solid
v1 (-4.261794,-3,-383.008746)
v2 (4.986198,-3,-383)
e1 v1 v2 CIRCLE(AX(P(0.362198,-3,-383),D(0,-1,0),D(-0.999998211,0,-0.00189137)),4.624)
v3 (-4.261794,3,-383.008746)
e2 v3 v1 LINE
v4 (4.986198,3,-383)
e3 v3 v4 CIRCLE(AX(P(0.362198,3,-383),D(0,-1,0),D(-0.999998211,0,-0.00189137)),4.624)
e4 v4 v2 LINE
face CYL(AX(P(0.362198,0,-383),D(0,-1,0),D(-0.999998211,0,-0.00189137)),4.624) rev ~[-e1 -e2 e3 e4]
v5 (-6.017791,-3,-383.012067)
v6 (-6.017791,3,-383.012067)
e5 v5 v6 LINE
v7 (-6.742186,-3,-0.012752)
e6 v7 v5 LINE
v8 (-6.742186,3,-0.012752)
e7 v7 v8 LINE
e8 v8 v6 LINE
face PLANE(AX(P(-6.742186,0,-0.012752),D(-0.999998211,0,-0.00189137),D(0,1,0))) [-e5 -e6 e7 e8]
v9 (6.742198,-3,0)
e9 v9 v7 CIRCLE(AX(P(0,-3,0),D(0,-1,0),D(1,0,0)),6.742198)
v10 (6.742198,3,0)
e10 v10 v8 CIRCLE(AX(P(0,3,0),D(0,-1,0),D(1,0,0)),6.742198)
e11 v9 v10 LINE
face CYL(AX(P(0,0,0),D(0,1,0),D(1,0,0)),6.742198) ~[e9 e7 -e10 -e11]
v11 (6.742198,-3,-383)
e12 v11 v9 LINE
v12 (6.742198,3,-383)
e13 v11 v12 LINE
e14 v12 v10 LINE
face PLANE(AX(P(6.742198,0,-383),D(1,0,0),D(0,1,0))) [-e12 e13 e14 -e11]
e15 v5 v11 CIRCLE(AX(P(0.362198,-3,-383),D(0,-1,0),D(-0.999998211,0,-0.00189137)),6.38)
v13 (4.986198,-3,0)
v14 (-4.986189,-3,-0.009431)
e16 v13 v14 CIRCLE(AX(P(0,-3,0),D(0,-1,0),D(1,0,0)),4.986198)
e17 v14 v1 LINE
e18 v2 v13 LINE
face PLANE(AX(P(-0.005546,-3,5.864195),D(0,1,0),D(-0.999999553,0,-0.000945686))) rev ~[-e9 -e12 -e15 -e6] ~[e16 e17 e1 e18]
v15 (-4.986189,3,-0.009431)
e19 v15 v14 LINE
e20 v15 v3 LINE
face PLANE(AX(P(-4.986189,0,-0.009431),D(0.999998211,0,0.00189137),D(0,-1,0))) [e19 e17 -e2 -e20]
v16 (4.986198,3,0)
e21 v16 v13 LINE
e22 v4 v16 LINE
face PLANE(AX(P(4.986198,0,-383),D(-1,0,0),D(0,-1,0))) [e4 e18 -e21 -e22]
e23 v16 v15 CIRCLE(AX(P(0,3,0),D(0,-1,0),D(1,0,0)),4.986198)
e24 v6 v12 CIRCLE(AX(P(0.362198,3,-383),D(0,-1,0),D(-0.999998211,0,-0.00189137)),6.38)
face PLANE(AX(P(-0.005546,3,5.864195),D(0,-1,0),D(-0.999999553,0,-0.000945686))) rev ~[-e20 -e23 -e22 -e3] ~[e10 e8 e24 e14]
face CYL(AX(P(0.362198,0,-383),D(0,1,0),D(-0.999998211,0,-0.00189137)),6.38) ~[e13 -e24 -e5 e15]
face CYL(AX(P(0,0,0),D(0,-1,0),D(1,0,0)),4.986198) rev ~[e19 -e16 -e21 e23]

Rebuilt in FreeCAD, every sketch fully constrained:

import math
import FreeCAD as App
import Part
import Sketcher
from FreeCAD import Vector

doc = App.newDocument("Part")
body = doc.addObject("PartDesign::Body", "Body")

sketch1 = body.newObject("Sketcher::SketchObject", "Sketch")
sketch1.AttachmentSupport = (doc.getObject("XY_Plane"), [""])
sketch1.MapMode = "FlatFace"
sketch1.addGeometry([
    Part.LineSegment(Vector(5, 3, 0), Vector(5, -3, 0)),
    Part.LineSegment(Vector(5, -3, 0), Vector(6.7, -3, 0)),
    Part.LineSegment(Vector(6.7, -3, 0), Vector(6.7, 3, 0)),
    Part.LineSegment(Vector(6.7, 3, 0), Vector(5, 3, 0)),
], False)
sketch1.addConstraint([
    Sketcher.Constraint("Coincident", 0, 2, 1, 1),
    Sketcher.Constraint("Coincident", 1, 2, 2, 1),
    Sketcher.Constraint("Coincident", 2, 2, 3, 1),
    Sketcher.Constraint("Coincident", 3, 2, 0, 1),
    Sketcher.Constraint("Vertical", 0),
    Sketcher.Constraint("Horizontal", 1),
    Sketcher.Constraint("Vertical", 2),
    Sketcher.Constraint("Horizontal", 3),
    Sketcher.Constraint("DistanceY", 0, 2, 0, 1, 6.0),
    Sketcher.Constraint("DistanceY", 0, 2, -1, 1, 3.0),
    Sketcher.Constraint("DistanceX", 1, 1, 1, 2, 1.756),
    Sketcher.Constraint("DistanceX", -1, 1, 0, 2, 4.986198),
])

sketch2 = body.newObject("Sketcher::SketchObject", "Sketch001")
sketch2.AttachmentSupport = (doc.getObject("XZ_Plane"), [""])
sketch2.MapMode = "FlatFace"
sketch2.addGeometry([
    Part.ArcOfCircle(Part.Circle(Vector(0, 0, 0), Vector(0, 0, 1), 6), math.radians(0), math.radians(180)),
    Part.LineSegment(Vector(-6, 0, 0), Vector(-6, -383, 0)),
    Part.ArcOfCircle(Part.Circle(Vector(0, -383, 0), Vector(0, 0, 1), 6), math.radians(-180), math.radians(0)),
    Part.LineSegment(Vector(6, -383, 0), Vector(6, 0, 0)),
], False)
sketch2.addConstraint([
    Sketcher.Constraint("Tangent", 0, 2, 1, 1),
    Sketcher.Constraint("Tangent", 1, 2, 2, 1),
    Sketcher.Constraint("Tangent", 2, 2, 3, 1),
    Sketcher.Constraint("Tangent", 3, 2, 0, 1),
    Sketcher.Constraint("Vertical", 3),
    Sketcher.Constraint("Coincident", 0, 3, -1, 1),
    Sketcher.Constraint("DistanceY", 3, 1, 3, 2, 383.0),
    Sketcher.Constraint("Radius", 2, 6.004),
    Sketcher.Constraint("Radius", 0, 6.366198),
])
doc.recompute()

additivepipe = body.newObject("PartDesign::AdditivePipe", "AdditivePipe")
additivepipe.Profile = sketch1
additivepipe.Spine = (sketch2, ["Edge1", "Edge2", "Edge3", "Edge4"])

doc.recompute()
